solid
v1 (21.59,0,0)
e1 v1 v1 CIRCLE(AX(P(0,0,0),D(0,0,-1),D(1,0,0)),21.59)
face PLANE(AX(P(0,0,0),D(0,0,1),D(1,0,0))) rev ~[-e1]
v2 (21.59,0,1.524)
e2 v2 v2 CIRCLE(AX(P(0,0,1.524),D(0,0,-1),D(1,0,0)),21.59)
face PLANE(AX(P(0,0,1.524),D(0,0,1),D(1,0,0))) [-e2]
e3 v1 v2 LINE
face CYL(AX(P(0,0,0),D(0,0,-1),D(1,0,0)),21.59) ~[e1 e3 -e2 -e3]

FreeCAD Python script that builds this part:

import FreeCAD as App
import Part
import Sketcher
Q = App.Units.Quantity

doc = App.newDocument("Part")
params = doc.addObject("Spreadsheet::Sheet", "Params")
for row, (alias, value) in enumerate([
    ("sketch1_diameter", "1.7 in"),
    ("pad1_length", "0.06 in"),
], start=1):
    params.set(f"A{row}", alias)
    params.set(f"B{row}", "=" + value)
    params.setAlias(f"B{row}", alias)

body = doc.addObject("PartDesign::Body", "Body")

sketch1 = body.newObject("Sketcher::SketchObject", "Sketch")
sketch1.AttachmentSupport = (doc.getObject("XY_Plane"), [""])
sketch1.MapMode = "FlatFace"
sketch1.addGeometry(Part.Circle(App.Vector(0, 0, 0), App.Vector(0, 0, 1), 22), False)
sketch1.addConstraint(Sketcher.Constraint("Coincident", 0, 3, -1, 1))
sketch1.addConstraint(Sketcher.Constraint("Diameter", 0, Q("1.7 in")))
sketch1.setExpression("Constraints[1]", "Params.sketch1_diameter")
pad1 = body.newObject("PartDesign::Pad", "Pad")
pad1.Profile = sketch1
pad1.setExpression("Length", "Params.pad1_length")

doc.recompute()
